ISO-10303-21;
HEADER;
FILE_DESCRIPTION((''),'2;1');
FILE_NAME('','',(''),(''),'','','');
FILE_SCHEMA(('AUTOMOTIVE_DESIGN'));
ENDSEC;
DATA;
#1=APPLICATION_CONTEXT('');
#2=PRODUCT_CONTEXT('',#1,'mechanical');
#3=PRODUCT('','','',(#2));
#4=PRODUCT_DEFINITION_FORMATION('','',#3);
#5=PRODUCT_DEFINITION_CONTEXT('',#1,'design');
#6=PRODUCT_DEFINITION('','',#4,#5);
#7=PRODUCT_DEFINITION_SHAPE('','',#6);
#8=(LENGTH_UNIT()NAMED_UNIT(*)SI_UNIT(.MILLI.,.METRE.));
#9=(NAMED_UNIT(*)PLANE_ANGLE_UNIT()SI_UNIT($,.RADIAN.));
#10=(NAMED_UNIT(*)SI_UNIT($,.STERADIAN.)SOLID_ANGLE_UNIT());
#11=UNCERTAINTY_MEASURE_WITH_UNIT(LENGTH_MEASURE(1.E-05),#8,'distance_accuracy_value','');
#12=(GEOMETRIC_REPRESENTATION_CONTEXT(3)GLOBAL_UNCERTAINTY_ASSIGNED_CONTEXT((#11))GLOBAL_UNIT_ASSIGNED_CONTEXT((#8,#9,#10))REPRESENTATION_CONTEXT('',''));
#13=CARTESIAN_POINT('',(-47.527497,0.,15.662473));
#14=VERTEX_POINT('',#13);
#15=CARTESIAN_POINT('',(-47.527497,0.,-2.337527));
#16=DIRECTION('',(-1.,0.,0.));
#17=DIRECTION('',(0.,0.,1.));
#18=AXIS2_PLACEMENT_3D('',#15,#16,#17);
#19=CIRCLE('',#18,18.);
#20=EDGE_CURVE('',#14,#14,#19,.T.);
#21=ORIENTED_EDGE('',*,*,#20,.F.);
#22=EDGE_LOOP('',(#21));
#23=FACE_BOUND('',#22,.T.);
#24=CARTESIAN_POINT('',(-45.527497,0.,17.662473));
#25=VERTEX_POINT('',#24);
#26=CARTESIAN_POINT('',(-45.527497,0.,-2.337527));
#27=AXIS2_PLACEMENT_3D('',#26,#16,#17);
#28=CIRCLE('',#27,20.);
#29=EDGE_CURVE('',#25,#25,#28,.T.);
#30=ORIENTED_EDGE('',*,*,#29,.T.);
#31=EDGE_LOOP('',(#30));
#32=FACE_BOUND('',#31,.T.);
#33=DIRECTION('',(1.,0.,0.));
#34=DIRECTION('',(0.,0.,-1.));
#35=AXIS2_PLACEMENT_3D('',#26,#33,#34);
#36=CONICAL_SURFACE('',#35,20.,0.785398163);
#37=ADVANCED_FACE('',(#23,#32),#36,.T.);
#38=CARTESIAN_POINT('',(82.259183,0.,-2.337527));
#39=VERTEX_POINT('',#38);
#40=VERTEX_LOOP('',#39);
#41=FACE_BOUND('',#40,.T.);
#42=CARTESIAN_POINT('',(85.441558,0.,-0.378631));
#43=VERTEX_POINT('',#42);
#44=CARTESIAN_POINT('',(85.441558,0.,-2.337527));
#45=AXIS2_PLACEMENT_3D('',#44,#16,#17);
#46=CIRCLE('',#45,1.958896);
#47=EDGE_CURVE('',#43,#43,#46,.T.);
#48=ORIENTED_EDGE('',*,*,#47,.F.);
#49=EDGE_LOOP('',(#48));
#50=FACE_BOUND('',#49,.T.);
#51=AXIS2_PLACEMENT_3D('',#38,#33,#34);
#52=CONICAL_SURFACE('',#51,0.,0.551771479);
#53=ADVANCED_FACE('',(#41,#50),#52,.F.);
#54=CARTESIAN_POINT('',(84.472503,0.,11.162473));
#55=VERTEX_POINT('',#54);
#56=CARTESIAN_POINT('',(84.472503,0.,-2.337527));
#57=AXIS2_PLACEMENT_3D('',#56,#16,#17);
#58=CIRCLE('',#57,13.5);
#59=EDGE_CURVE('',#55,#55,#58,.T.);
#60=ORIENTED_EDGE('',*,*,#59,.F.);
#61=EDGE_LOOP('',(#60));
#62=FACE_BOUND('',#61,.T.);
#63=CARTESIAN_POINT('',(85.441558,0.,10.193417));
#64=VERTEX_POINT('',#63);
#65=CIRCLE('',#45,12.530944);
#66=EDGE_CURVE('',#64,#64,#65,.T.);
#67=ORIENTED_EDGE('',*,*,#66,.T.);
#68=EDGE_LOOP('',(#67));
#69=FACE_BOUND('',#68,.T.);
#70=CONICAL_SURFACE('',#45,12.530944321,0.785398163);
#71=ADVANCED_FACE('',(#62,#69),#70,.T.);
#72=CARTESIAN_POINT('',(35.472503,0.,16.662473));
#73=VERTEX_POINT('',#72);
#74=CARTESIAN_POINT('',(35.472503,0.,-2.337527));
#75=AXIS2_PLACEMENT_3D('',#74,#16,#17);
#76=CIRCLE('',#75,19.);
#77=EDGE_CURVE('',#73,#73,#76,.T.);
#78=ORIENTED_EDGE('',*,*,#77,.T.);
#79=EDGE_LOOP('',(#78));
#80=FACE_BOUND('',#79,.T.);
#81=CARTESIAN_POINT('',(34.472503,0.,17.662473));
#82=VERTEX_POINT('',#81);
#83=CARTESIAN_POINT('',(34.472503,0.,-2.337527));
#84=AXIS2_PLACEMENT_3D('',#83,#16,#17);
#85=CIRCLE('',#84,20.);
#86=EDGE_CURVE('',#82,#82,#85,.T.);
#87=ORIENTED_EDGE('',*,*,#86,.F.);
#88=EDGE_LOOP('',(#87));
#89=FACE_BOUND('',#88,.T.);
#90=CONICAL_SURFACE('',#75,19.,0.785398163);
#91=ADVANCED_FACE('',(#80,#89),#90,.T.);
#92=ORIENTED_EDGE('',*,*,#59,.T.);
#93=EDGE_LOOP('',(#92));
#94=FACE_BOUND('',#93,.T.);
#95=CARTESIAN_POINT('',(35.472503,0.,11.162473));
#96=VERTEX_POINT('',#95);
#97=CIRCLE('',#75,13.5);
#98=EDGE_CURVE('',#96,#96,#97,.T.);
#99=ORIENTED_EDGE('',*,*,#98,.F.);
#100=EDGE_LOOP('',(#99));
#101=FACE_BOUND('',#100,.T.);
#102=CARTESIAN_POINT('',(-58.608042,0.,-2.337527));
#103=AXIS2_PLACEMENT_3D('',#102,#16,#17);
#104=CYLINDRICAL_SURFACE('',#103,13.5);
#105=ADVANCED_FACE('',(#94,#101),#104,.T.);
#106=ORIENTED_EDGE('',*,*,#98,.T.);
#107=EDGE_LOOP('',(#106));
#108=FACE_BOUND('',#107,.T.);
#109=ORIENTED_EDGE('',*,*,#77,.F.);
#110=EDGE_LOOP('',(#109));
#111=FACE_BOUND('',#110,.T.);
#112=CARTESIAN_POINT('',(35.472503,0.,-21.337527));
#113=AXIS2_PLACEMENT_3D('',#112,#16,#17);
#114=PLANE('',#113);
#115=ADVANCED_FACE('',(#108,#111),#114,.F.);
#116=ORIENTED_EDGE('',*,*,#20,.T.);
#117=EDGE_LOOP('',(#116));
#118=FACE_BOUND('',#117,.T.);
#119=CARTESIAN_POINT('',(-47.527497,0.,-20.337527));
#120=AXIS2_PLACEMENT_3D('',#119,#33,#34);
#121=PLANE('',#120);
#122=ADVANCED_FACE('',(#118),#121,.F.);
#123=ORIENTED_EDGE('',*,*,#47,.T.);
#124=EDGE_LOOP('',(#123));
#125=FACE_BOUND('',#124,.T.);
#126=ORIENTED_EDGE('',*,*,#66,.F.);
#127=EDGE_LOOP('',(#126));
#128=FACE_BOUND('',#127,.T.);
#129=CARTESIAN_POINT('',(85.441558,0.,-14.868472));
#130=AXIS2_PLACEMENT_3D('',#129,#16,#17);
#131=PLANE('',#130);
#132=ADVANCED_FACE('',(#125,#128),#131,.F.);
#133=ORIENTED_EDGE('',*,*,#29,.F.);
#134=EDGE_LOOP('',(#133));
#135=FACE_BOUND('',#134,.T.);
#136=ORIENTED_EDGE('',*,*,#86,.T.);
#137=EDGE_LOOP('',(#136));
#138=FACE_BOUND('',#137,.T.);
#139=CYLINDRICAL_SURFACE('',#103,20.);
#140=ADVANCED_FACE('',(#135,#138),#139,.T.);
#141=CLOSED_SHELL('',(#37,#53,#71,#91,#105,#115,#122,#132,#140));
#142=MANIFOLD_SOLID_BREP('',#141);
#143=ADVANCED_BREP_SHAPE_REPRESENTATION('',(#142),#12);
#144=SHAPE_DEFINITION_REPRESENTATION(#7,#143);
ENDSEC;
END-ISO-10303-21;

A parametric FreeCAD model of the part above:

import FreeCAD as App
import Part
import Sketcher
Q = App.Units.Quantity


def add_polygon(sketch, points):
    """Adds a closed chain of lines whose ends are joined by coincident constraints."""
    first, n = sketch.GeometryCount, len(points)
    for a, b in zip(points, points[1:] + points[:1]):
        sketch.addGeometry(Part.LineSegment(App.Vector(*a, 0), App.Vector(*b, 0)), False)
    for i in range(n):
        sketch.addConstraint(Sketcher.Constraint("Coincident", first + i, 2, first + (i + 1) % n, 1))

doc = App.newDocument("Part")
params = doc.addObject("Spreadsheet::Sheet", "Params")
for row, (alias, value) in enumerate([
    ("sketch1_width", "80 mm"),
    ("sketch1_width2", "49 mm"),
    ("sketch1_height", "18 mm"),
    ("sketch1_height2", "5.5 mm"),
    ("revolution_angle", "360 deg"),
], start=1):
    params.set(f"A{row}", alias)
    params.set(f"B{row}", "=" + value)
    params.setAlias(f"B{row}", alias)

body = doc.addObject("PartDesign::Body", "Body")

# Sketch on XZ plane
sketch1 = body.newObject("Sketcher::SketchObject", "Sketch")
sketch1.AttachmentSupport = (doc.getObject("XZ_Plane"), [""])
sketch1.MapMode = "FlatFace"
add_polygon(sketch1, [(34.5, -22.3), (-45.5, -22.3), (-47.5, -20.3), (-47.5, -2.3), (82.3, -2.3), (85.4, -4.3), (85.4, -14.9), (84.5, -15.8), (35.5, -15.8), (35.5, -21.3)])  # lines 0-9
sketch1.addGeometry(Part.LineSegment(App.Vector(-47.5, -2.3, 0), App.Vector(85.4, -2.3, 0)), True)  # axis
sketch1.addConstraint([
    Sketcher.Constraint("Horizontal", 0),
    Sketcher.Constraint("Vertical", 2),
    Sketcher.Constraint("Horizontal", 3),
    Sketcher.Constraint("Vertical", 5),
    Sketcher.Constraint("Horizontal", 7),
    Sketcher.Constraint("Vertical", 8),
    Sketcher.Constraint("Horizontal", 10),
    Sketcher.Constraint("Coincident", 10, 1, 2, 2),
    Sketcher.Constraint("Perpendicular", 1, 6),
    Sketcher.Constraint("Parallel", 6, 9),
    Sketcher.Constraint("Vertical", 5, 2, 10, 2),
    Sketcher.Constraint("DistanceX", 0, 2, 0, 1, 80.0),
    Sketcher.Constraint("DistanceX", 7, 2, 7, 1, 49.0),
    Sketcher.Constraint("DistanceY", 2, 1, 2, 2, 18.0),
    Sketcher.Constraint("Angle", 1, Q("135 deg")),
    Sketcher.Constraint("DistanceY", 8, 2, 8, 1, 5.5),
    Sketcher.Constraint("DistanceX", 1, 2, 0, 2, 2.0),
    Sketcher.Constraint("DistanceX", 0, 2, 6, 2, 130.0),
    Sketcher.Constraint("DistanceX", 3, 1, 3, 2, 129.78668),
    Sketcher.Constraint("DistanceY", 5, 2, 5, 1, 10.572048),
    Sketcher.Constraint("Distance", 4, 3.736949),
    Sketcher.Constraint("DistanceX", -1, 1, 4, 2, 85.441558),
    Sketcher.Constraint("DistanceY", 5, 2, -1, 1, 14.868472),
])
sketch1.setExpression("Constraints[21]", "Params.sketch1_width")
sketch1.setExpression("Constraints[22]", "Params.sketch1_width2")
sketch1.setExpression("Constraints[23]", "Params.sketch1_height")
sketch1.setExpression("Constraints[25]", "Params.sketch1_height2")
revolution = body.newObject("PartDesign::Revolution", "Revolution")
revolution.Profile = sketch1
revolution.ReferenceAxis = (sketch1, ["Axis0"])
revolution.setExpression("Angle", "Params.revolution_angle")

doc.recompute()
